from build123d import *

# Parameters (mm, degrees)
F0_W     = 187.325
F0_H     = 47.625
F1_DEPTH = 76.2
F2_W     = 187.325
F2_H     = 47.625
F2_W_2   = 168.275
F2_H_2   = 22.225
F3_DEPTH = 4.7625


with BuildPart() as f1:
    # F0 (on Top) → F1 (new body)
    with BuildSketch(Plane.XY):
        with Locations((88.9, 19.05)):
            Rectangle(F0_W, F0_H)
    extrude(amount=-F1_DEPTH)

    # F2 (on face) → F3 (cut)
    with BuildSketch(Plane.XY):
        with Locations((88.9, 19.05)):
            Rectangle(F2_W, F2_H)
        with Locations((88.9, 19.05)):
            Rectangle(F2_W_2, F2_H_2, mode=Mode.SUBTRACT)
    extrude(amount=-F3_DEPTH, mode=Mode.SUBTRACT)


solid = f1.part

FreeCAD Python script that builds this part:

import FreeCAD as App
import Part
import Sketcher

V = App.Vector
Q = App.Units.Quantity

doc = App.newDocument("Part")
body = doc.addObject("PartDesign::Body", "Body")

# Sketch on XY plane
sketch1 = body.newObject("Sketcher::SketchObject", "Sketch")
sketch1.AttachmentSupport = (doc.getObject("XY_Plane"), [""])
sketch1.MapMode = "FlatFace"
sketch1.addGeometry([
    Part.LineSegment(V(-5, 43, 0), V(-5, -5, 0)),
    Part.LineSegment(V(-5, -5, 0), V(183, -5, 0)),
    Part.LineSegment(V(183, -5, 0), V(183, 43, 0)),
    Part.LineSegment(V(183, 43, 0), V(-5, 43, 0)),
], False)
sketch1.addConstraint([
    Sketcher.Constraint("Coincident", 0, 2, 1, 1),
    Sketcher.Constraint("Coincident", 1, 2, 2, 1),
    Sketcher.Constraint("Coincident", 2, 2, 3, 1),
    Sketcher.Constraint("Coincident", 3, 2, 0, 1),
    Sketcher.Constraint("Vertical", 0),
    Sketcher.Constraint("Horizontal", 1),
    Sketcher.Constraint("Vertical", 2),
    Sketcher.Constraint("Horizontal", 3),
    Sketcher.Constraint("DistanceX", 1, 1, 1, 2, Q("7.375 in")),
    Sketcher.Constraint("DistanceY", 0, 2, 0, 1, Q("1.875 in")),
    Sketcher.Constraint("DistanceX", 0, 2, -1, 1, Q("0.1875 in")),
    Sketcher.Constraint("DistanceY", 0, 2, -1, 1, Q("0.1875 in")),
])
pad1 = body.newObject("PartDesign::Pad", "Pad")
pad1.Profile = sketch1
pad1.Length = Q("3 in")
pad1.Reversed = True

# Sketch on XY plane
sketch2 = body.newObject("Sketcher::SketchObject", "Sketch001")
sketch2.AttachmentSupport = (doc.getObject("XY_Plane"), [""])
sketch2.MapMode = "FlatFace"
sketch2.addGeometry([
    Part.LineSegment(V(-5, 43, 0), V(-5, -5, 0)),  # 0
    Part.LineSegment(V(-5, -5, 0), V(183, -5, 0)),  # 1
    Part.LineSegment(V(183, -5, 0), V(183, 43, 0)),  # 2
    Part.LineSegment(V(183, 43, 0), V(-5, 43, 0)),  # 3
    Part.LineSegment(V(173, 8, 0), V(5, 8, 0)),  # 4
    Part.LineSegment(V(5, 8, 0), V(5, 30, 0)),  # 5
    Part.LineSegment(V(5, 30, 0), V(173, 30, 0)),  # 6
    Part.LineSegment(V(173, 30, 0), V(173, 8, 0)),  # 7
], False)
sketch2.addConstraint([
    Sketcher.Constraint("Coincident", 0, 2, 1, 1),
    Sketcher.Constraint("Coincident", 1, 2, 2, 1),
    Sketcher.Constraint("Coincident", 2, 2, 3, 1),
    Sketcher.Constraint("Coincident", 3, 2, 0, 1),
    Sketcher.Constraint("Coincident", 4, 2, 5, 1),
    Sketcher.Constraint("Coincident", 5, 2, 6, 1),
    Sketcher.Constraint("Coincident", 6, 2, 7, 1),
    Sketcher.Constraint("Coincident", 7, 2, 4, 1),
    Sketcher.Constraint("Vertical", 0),
    Sketcher.Constraint("Horizontal", 1),
    Sketcher.Constraint("Vertical", 2),
    Sketcher.Constraint("Horizontal", 3),
    Sketcher.Constraint("Horizontal", 4),
    Sketcher.Constraint("Vertical", 5),
    Sketcher.Constraint("Horizontal", 6),
    Sketcher.Constraint("Vertical", 7),
    Sketcher.Constraint("DistanceX", 4, 2, 1, 2, Q("7 in")),
    Sketcher.Constraint("DistanceX", 3, 2, 6, 2, Q("7 in")),
    Sketcher.Constraint("DistanceY", 0, 2, 4, 2, Q("0.5 in")),
    Sketcher.Constraint("DistanceY", 5, 2, 3, 2, Q("0.5 in")),
    Sketcher.Constraint("DistanceX", 1, 1, 1, 2, Q("7.375 in")),
    Sketcher.Constraint("DistanceY", 0, 2, 0, 1, Q("1.875 in")),
    Sketcher.Constraint("DistanceX", 0, 2, -1, 1, Q("0.1875 in")),
    Sketcher.Constraint("DistanceY", 0, 2, -1, 1, Q("0.1875 in")),
])
pocket1 = body.newObject("PartDesign::Pocket", "Pocket")
pocket1.Profile = sketch2
pocket1.Length = Q("0.1875 in")

doc.recompute()
